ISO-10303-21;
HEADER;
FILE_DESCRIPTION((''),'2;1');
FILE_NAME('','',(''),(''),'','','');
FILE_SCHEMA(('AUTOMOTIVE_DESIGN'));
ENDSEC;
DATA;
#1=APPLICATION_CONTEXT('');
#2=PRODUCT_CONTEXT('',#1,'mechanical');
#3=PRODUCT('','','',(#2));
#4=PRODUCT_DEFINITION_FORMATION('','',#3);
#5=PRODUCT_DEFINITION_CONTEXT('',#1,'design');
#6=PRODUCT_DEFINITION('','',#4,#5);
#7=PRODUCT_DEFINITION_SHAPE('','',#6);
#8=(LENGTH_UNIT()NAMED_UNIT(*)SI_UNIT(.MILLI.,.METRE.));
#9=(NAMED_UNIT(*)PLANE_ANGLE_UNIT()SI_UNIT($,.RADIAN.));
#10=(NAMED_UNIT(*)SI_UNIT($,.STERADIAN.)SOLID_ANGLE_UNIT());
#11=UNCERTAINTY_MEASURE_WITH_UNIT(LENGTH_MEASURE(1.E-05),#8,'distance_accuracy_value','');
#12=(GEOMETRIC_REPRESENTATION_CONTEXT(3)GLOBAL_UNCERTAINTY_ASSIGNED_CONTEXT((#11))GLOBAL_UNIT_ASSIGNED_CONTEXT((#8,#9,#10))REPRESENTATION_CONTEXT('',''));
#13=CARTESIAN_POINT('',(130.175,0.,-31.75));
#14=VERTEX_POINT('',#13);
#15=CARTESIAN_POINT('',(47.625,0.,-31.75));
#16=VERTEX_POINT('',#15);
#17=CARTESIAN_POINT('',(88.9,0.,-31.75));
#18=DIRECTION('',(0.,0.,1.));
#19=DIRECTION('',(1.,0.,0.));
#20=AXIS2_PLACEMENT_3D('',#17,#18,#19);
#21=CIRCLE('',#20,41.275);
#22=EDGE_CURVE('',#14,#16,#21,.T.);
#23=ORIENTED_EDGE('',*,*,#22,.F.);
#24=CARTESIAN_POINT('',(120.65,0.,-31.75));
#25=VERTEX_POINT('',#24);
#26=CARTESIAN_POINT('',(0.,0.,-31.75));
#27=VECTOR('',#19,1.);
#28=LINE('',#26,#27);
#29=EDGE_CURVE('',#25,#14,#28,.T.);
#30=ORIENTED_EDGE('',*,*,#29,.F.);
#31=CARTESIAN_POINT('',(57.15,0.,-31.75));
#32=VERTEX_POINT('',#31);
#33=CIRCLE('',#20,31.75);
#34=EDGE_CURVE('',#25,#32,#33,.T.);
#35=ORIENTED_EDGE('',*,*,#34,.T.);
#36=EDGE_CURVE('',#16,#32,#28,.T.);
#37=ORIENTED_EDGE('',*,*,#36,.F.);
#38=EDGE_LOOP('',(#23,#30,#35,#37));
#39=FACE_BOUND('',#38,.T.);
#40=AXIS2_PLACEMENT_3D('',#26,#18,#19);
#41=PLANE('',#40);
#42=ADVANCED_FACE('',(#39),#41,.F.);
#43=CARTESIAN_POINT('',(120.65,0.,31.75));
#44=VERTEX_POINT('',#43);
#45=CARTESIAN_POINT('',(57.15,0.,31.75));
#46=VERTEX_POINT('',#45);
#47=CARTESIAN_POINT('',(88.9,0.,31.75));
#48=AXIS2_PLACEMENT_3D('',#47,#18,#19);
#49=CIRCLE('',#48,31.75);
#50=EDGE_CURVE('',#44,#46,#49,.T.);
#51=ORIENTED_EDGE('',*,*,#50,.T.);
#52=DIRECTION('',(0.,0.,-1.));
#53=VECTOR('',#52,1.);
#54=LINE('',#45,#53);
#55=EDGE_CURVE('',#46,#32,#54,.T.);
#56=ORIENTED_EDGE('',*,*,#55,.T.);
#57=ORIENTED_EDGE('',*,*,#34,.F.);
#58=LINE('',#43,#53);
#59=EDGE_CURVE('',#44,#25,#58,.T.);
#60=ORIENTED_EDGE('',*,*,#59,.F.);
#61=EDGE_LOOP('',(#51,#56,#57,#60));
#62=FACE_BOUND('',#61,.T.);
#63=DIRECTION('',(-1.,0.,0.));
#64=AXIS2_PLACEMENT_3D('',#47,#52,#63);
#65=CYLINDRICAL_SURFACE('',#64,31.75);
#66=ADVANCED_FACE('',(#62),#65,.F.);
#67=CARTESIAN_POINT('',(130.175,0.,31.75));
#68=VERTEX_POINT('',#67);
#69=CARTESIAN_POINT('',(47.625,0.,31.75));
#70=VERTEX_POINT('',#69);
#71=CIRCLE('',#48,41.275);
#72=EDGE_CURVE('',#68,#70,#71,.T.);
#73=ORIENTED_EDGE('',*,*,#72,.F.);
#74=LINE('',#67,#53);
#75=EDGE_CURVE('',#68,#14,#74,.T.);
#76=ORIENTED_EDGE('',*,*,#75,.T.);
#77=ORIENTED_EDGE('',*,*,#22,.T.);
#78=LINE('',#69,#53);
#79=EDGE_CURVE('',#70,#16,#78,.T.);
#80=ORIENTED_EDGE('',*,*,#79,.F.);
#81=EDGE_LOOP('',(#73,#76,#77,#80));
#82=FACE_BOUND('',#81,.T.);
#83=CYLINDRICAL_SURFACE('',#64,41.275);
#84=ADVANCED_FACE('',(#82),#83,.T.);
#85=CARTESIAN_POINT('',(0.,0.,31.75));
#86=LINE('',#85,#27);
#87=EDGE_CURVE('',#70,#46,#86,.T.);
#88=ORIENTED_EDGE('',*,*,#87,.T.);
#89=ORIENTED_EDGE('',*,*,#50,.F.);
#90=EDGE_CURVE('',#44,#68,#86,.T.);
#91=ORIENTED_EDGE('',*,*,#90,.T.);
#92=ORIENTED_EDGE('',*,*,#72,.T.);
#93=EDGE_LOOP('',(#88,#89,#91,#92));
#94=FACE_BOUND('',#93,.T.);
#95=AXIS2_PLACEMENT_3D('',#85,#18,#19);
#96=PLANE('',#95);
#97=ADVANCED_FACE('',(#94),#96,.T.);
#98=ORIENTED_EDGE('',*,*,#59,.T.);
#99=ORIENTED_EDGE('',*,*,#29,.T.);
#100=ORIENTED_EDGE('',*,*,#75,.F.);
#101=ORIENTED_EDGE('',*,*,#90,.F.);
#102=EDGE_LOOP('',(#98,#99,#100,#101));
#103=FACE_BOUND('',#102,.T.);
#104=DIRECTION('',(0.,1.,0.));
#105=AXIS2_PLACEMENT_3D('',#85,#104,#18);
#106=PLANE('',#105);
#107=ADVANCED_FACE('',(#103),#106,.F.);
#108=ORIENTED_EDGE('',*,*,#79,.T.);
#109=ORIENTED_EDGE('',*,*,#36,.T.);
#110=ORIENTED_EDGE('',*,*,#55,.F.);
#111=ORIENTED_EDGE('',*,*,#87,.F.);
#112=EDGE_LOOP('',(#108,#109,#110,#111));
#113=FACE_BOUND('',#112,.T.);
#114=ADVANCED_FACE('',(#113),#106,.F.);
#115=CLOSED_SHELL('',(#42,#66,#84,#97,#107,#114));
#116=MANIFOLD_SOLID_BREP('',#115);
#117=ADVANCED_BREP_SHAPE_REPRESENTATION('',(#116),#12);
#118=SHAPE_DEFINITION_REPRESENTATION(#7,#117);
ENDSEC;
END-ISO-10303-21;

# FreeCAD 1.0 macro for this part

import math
import FreeCAD as App
import Part
import Sketcher
Q = App.Units.Quantity

doc = App.newDocument("Part")
params = doc.addObject("Spreadsheet::Sheet", "Params")
for row, (alias, value) in enumerate([
    ("sketch1_radius", "1.25 in"),
    ("sketch1_radius2", "1.625 in"),
    ("pad1_length", "2.5 in"),
], start=1):
    params.set(f"A{row}", alias)
    params.set(f"B{row}", "=" + value)
    params.setAlias(f"B{row}", alias)

body = doc.addObject("PartDesign::Body", "Body")

# Sketch on XY plane
sketch1 = body.newObject("Sketcher::SketchObject", "Sketch")
sketch1.AttachmentSupport = (doc.getObject("XY_Plane"), [""])
sketch1.MapMode = "FlatFace"
sketch1.addGeometry([
    Part.ArcOfCircle(Part.Circle(App.Vector(89, 0, 0), App.Vector(0, 0, 1), 32), math.radians(0), math.radians(180)),  # 0
    Part.LineSegment(App.Vector(121, 0, 0), App.Vector(130, 0, 0)),  # 1
    Part.ArcOfCircle(Part.Circle(App.Vector(89, 0, 0), App.Vector(0, 0, 1), 41), math.radians(0), math.radians(17.92)),  # 2
    Part.ArcOfCircle(Part.Circle(App.Vector(89, 0, 0), App.Vector(0, 0, 1), 41), math.radians(18), math.radians(162)),  # 3
    Part.ArcOfCircle(Part.Circle(App.Vector(89, 0, 0), App.Vector(0, 0, 1), 41), math.radians(162.08), math.radians(180)),  # 4
    Part.LineSegment(App.Vector(48, 0, 0), App.Vector(57, 0, 0)),  # 5
], False)
sketch1.addConstraint([
    Sketcher.Constraint("Coincident", 0, 1, 1, 1),
    Sketcher.Constraint("Coincident", 1, 2, 2, 1),
    Sketcher.Constraint("Tangent", 2, 2, 3, 1),
    Sketcher.Constraint("Tangent", 3, 2, 4, 1),
    Sketcher.Constraint("Coincident", 4, 2, 5, 1),
    Sketcher.Constraint("Coincident", 5, 2, 0, 2),
    Sketcher.Constraint("Horizontal", 1),
    Sketcher.Constraint("Horizontal", 5),
    Sketcher.Constraint("Coincident", 2, 3, 0, 3),
    Sketcher.Constraint("Coincident", 4, 3, 0, 3),
    Sketcher.Constraint("PointOnObject", 0, 3, -1),
    Sketcher.Constraint("PointOnObject", 0, 1, -1),
    Sketcher.Constraint("PointOnObject", 4, 2, -1),
    Sketcher.Constraint("Horizontal", 2, 2, 3, 2),
    Sketcher.Constraint("Radius", 0, Q("1.25 in")),
    Sketcher.Constraint("Radius", 2, Q("1.625 in")),
    Sketcher.Constraint("DistanceX", -1, 1, 0, 3, Q("3.5 in")),
    Sketcher.Constraint("DistanceY", -1, 1, 2, 2, Q("0.5 in")),
])
sketch1.setExpression("Constraints[14]", "Params.sketch1_radius")
sketch1.setExpression("Constraints[15]", "Params.sketch1_radius2")
pad1 = body.newObject("PartDesign::Pad", "Pad")
pad1.Profile = sketch1
pad1.setExpression("Length", "Params.pad1_length")
pad1.Midplane = True

doc.recompute()
